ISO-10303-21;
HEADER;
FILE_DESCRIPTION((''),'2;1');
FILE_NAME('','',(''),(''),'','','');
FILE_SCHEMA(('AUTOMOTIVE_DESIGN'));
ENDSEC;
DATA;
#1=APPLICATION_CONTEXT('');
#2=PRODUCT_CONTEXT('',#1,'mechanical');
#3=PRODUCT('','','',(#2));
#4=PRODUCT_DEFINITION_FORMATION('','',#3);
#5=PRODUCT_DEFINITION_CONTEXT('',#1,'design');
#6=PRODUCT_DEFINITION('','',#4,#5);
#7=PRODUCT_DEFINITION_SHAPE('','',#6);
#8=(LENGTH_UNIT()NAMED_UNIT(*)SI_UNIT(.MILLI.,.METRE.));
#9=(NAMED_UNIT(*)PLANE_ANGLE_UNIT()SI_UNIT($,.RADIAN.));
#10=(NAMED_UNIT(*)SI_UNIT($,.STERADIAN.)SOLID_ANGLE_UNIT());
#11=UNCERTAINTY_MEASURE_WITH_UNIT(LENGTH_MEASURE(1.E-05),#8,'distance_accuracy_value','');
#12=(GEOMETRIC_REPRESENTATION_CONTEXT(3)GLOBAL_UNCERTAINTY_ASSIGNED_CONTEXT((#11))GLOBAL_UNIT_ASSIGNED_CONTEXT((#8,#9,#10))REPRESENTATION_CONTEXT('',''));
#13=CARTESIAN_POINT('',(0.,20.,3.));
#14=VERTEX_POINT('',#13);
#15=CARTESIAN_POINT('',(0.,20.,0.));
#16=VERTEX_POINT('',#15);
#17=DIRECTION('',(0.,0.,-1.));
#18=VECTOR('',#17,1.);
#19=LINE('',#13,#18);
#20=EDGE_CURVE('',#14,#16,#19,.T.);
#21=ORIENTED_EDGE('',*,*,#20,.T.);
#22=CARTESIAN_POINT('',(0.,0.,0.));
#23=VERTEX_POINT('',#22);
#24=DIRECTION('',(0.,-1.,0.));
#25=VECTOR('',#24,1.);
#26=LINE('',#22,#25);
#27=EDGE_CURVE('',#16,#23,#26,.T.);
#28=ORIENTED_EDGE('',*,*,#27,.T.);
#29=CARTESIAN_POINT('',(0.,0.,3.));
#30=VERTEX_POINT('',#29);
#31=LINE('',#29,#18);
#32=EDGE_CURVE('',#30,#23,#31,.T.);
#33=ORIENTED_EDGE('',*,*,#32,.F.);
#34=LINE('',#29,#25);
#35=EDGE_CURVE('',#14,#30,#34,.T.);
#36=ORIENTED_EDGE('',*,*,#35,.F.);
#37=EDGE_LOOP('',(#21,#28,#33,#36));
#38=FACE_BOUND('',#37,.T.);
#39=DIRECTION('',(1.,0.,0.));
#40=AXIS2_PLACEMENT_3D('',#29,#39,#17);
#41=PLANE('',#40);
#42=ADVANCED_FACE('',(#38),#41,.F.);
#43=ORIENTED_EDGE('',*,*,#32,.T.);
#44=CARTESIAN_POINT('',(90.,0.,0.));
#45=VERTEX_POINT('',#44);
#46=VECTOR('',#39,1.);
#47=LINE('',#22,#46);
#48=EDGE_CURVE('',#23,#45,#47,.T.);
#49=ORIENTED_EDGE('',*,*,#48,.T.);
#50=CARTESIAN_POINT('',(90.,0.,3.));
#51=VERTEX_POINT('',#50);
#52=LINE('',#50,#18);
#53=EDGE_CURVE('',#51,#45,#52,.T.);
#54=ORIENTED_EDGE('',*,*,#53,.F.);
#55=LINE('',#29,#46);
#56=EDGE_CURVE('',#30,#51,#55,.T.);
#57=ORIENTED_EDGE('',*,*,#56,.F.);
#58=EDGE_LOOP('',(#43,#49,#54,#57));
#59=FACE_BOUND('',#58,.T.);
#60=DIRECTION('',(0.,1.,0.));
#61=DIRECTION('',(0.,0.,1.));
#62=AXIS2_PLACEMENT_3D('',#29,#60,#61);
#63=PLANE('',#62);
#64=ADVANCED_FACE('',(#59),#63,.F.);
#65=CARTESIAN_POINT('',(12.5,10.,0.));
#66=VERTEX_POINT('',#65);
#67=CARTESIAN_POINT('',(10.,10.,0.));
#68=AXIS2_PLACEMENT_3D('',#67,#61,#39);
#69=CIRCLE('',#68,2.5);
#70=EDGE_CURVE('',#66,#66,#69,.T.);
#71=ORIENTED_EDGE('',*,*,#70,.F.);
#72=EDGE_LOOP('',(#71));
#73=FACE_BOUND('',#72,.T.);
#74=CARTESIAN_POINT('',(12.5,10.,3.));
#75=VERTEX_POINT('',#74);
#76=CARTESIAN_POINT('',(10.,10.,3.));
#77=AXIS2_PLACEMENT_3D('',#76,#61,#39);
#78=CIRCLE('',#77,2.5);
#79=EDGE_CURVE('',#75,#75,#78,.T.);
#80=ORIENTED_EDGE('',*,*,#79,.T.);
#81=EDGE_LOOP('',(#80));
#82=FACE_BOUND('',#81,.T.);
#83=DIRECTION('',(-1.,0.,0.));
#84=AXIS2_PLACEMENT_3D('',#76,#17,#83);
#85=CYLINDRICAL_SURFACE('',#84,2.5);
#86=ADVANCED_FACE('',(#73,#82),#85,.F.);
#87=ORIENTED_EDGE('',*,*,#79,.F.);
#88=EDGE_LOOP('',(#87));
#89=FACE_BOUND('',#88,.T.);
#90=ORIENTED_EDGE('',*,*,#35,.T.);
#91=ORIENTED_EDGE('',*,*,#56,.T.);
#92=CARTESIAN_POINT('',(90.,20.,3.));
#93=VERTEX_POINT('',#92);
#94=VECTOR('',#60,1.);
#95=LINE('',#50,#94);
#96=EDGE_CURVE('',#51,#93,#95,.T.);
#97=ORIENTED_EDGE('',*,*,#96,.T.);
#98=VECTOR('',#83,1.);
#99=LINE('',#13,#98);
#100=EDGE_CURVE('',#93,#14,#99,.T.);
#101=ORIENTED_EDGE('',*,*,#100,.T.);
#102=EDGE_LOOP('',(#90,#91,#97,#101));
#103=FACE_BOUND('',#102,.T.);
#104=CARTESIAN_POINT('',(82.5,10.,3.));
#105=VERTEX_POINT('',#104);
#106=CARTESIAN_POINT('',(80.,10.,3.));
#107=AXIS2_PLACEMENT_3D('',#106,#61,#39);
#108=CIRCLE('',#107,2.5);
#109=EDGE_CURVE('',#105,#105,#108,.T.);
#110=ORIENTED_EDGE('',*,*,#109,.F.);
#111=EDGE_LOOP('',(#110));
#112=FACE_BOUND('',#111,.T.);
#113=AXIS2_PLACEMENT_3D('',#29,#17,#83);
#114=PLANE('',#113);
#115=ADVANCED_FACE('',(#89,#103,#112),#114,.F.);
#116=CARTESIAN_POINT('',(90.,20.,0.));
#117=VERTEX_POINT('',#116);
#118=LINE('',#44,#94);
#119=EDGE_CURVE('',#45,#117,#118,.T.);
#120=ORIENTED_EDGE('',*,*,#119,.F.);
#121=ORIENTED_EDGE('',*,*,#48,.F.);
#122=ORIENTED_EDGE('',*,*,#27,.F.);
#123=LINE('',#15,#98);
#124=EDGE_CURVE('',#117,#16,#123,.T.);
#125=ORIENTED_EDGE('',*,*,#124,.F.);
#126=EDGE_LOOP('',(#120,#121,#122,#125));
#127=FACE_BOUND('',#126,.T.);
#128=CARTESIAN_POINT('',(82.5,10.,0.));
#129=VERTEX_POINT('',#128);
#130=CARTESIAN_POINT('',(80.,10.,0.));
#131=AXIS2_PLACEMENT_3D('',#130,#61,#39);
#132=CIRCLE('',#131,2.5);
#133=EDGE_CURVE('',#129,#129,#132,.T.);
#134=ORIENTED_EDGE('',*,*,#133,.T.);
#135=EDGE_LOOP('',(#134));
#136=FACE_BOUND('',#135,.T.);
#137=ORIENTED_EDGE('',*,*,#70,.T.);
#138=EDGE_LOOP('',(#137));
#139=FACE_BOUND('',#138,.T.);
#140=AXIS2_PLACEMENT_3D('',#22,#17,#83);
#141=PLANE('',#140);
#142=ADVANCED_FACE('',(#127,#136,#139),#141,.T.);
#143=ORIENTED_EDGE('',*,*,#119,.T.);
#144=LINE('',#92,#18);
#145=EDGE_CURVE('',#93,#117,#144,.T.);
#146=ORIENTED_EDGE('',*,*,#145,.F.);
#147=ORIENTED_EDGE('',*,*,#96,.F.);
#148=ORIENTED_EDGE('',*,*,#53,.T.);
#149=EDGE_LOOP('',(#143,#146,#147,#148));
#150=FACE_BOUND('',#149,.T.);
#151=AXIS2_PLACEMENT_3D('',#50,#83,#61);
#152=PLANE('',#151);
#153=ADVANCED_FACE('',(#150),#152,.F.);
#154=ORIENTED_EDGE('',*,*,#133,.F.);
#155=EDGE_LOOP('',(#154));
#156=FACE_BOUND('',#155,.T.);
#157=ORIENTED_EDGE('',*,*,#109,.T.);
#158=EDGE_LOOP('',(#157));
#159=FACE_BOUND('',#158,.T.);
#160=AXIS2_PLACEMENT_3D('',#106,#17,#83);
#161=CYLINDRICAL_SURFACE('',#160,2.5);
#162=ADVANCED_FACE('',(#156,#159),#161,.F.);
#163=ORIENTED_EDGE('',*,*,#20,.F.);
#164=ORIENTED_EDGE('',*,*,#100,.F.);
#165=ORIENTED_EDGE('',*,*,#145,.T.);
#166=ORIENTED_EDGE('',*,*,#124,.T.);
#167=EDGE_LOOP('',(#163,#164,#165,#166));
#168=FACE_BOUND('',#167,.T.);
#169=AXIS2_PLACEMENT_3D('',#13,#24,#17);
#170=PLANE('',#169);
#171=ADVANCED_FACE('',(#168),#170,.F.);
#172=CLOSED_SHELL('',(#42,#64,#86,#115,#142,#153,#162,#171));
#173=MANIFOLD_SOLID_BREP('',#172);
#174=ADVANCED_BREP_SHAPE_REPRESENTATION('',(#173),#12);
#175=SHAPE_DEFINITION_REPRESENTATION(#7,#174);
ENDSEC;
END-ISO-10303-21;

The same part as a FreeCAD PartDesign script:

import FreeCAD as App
import Part
import Sketcher
from FreeCAD import Vector
Q = App.Units.Quantity


def add_polygon(sketch, points):
    """Adds a closed chain of lines whose ends are joined by coincident constraints."""
    first, n = sketch.GeometryCount, len(points)
    for a, b in zip(points, points[1:] + points[:1]):
        sketch.addGeometry(Part.LineSegment(App.Vector(*a, 0), App.Vector(*b, 0)), False)
    for i in range(n):
        sketch.addConstraint(Sketcher.Constraint("Coincident", first + i, 2, first + (i + 1) % n, 1))

doc = App.newDocument("Part")
body = doc.addObject("PartDesign::Body", "Body")

sketch1 = body.newObject("Sketcher::SketchObject", "Sketch")
sketch1.AttachmentSupport = (doc.getObject("XY_Plane"), [""])
sketch1.MapMode = "FlatFace"
add_polygon(sketch1, [(0, 20), (0, 0), (90, 0), (90, 20)])
sketch1.addGeometry(Part.Circle(Vector(10, 10, 0), Vector(0, 0, 1), 2.5), False)
sketch1.addGeometry(Part.Circle(Vector(80, 10, 0), Vector(0, 0, 1), 2.5), False)
sketch1.addConstraint([
    Sketcher.Constraint("Vertical", 0),
    Sketcher.Constraint("Horizontal", 1),
    Sketcher.Constraint("Vertical", 2),
    Sketcher.Constraint("Horizontal", 3),
    Sketcher.Constraint("Coincident", 0, 2, -1, 1),
    Sketcher.Constraint("Equal", 4, 5),
    Sketcher.Constraint("Horizontal", 4, 3, 5, 3),
    Sketcher.Constraint("Diameter", 4, Q("5 mm")),
    Sketcher.Constraint("DistanceX", 1, 1, 1, 2, Q("90 mm")),
    Sketcher.Constraint("DistanceY", 0, 2, 0, 1, Q("20 mm")),
    Sketcher.Constraint("DistanceX", -1, 1, 4, 3, Q("10 mm")),
    Sketcher.Constraint("DistanceY", -1, 1, 4, 3, Q("10 mm")),
    Sketcher.Constraint("DistanceX", -1, 1, 5, 3, Q("80 mm")),
])
pad1 = body.newObject("PartDesign::Pad", "Pad")
pad1.Profile = sketch1
pad1.Length = 3

doc.recompute()
